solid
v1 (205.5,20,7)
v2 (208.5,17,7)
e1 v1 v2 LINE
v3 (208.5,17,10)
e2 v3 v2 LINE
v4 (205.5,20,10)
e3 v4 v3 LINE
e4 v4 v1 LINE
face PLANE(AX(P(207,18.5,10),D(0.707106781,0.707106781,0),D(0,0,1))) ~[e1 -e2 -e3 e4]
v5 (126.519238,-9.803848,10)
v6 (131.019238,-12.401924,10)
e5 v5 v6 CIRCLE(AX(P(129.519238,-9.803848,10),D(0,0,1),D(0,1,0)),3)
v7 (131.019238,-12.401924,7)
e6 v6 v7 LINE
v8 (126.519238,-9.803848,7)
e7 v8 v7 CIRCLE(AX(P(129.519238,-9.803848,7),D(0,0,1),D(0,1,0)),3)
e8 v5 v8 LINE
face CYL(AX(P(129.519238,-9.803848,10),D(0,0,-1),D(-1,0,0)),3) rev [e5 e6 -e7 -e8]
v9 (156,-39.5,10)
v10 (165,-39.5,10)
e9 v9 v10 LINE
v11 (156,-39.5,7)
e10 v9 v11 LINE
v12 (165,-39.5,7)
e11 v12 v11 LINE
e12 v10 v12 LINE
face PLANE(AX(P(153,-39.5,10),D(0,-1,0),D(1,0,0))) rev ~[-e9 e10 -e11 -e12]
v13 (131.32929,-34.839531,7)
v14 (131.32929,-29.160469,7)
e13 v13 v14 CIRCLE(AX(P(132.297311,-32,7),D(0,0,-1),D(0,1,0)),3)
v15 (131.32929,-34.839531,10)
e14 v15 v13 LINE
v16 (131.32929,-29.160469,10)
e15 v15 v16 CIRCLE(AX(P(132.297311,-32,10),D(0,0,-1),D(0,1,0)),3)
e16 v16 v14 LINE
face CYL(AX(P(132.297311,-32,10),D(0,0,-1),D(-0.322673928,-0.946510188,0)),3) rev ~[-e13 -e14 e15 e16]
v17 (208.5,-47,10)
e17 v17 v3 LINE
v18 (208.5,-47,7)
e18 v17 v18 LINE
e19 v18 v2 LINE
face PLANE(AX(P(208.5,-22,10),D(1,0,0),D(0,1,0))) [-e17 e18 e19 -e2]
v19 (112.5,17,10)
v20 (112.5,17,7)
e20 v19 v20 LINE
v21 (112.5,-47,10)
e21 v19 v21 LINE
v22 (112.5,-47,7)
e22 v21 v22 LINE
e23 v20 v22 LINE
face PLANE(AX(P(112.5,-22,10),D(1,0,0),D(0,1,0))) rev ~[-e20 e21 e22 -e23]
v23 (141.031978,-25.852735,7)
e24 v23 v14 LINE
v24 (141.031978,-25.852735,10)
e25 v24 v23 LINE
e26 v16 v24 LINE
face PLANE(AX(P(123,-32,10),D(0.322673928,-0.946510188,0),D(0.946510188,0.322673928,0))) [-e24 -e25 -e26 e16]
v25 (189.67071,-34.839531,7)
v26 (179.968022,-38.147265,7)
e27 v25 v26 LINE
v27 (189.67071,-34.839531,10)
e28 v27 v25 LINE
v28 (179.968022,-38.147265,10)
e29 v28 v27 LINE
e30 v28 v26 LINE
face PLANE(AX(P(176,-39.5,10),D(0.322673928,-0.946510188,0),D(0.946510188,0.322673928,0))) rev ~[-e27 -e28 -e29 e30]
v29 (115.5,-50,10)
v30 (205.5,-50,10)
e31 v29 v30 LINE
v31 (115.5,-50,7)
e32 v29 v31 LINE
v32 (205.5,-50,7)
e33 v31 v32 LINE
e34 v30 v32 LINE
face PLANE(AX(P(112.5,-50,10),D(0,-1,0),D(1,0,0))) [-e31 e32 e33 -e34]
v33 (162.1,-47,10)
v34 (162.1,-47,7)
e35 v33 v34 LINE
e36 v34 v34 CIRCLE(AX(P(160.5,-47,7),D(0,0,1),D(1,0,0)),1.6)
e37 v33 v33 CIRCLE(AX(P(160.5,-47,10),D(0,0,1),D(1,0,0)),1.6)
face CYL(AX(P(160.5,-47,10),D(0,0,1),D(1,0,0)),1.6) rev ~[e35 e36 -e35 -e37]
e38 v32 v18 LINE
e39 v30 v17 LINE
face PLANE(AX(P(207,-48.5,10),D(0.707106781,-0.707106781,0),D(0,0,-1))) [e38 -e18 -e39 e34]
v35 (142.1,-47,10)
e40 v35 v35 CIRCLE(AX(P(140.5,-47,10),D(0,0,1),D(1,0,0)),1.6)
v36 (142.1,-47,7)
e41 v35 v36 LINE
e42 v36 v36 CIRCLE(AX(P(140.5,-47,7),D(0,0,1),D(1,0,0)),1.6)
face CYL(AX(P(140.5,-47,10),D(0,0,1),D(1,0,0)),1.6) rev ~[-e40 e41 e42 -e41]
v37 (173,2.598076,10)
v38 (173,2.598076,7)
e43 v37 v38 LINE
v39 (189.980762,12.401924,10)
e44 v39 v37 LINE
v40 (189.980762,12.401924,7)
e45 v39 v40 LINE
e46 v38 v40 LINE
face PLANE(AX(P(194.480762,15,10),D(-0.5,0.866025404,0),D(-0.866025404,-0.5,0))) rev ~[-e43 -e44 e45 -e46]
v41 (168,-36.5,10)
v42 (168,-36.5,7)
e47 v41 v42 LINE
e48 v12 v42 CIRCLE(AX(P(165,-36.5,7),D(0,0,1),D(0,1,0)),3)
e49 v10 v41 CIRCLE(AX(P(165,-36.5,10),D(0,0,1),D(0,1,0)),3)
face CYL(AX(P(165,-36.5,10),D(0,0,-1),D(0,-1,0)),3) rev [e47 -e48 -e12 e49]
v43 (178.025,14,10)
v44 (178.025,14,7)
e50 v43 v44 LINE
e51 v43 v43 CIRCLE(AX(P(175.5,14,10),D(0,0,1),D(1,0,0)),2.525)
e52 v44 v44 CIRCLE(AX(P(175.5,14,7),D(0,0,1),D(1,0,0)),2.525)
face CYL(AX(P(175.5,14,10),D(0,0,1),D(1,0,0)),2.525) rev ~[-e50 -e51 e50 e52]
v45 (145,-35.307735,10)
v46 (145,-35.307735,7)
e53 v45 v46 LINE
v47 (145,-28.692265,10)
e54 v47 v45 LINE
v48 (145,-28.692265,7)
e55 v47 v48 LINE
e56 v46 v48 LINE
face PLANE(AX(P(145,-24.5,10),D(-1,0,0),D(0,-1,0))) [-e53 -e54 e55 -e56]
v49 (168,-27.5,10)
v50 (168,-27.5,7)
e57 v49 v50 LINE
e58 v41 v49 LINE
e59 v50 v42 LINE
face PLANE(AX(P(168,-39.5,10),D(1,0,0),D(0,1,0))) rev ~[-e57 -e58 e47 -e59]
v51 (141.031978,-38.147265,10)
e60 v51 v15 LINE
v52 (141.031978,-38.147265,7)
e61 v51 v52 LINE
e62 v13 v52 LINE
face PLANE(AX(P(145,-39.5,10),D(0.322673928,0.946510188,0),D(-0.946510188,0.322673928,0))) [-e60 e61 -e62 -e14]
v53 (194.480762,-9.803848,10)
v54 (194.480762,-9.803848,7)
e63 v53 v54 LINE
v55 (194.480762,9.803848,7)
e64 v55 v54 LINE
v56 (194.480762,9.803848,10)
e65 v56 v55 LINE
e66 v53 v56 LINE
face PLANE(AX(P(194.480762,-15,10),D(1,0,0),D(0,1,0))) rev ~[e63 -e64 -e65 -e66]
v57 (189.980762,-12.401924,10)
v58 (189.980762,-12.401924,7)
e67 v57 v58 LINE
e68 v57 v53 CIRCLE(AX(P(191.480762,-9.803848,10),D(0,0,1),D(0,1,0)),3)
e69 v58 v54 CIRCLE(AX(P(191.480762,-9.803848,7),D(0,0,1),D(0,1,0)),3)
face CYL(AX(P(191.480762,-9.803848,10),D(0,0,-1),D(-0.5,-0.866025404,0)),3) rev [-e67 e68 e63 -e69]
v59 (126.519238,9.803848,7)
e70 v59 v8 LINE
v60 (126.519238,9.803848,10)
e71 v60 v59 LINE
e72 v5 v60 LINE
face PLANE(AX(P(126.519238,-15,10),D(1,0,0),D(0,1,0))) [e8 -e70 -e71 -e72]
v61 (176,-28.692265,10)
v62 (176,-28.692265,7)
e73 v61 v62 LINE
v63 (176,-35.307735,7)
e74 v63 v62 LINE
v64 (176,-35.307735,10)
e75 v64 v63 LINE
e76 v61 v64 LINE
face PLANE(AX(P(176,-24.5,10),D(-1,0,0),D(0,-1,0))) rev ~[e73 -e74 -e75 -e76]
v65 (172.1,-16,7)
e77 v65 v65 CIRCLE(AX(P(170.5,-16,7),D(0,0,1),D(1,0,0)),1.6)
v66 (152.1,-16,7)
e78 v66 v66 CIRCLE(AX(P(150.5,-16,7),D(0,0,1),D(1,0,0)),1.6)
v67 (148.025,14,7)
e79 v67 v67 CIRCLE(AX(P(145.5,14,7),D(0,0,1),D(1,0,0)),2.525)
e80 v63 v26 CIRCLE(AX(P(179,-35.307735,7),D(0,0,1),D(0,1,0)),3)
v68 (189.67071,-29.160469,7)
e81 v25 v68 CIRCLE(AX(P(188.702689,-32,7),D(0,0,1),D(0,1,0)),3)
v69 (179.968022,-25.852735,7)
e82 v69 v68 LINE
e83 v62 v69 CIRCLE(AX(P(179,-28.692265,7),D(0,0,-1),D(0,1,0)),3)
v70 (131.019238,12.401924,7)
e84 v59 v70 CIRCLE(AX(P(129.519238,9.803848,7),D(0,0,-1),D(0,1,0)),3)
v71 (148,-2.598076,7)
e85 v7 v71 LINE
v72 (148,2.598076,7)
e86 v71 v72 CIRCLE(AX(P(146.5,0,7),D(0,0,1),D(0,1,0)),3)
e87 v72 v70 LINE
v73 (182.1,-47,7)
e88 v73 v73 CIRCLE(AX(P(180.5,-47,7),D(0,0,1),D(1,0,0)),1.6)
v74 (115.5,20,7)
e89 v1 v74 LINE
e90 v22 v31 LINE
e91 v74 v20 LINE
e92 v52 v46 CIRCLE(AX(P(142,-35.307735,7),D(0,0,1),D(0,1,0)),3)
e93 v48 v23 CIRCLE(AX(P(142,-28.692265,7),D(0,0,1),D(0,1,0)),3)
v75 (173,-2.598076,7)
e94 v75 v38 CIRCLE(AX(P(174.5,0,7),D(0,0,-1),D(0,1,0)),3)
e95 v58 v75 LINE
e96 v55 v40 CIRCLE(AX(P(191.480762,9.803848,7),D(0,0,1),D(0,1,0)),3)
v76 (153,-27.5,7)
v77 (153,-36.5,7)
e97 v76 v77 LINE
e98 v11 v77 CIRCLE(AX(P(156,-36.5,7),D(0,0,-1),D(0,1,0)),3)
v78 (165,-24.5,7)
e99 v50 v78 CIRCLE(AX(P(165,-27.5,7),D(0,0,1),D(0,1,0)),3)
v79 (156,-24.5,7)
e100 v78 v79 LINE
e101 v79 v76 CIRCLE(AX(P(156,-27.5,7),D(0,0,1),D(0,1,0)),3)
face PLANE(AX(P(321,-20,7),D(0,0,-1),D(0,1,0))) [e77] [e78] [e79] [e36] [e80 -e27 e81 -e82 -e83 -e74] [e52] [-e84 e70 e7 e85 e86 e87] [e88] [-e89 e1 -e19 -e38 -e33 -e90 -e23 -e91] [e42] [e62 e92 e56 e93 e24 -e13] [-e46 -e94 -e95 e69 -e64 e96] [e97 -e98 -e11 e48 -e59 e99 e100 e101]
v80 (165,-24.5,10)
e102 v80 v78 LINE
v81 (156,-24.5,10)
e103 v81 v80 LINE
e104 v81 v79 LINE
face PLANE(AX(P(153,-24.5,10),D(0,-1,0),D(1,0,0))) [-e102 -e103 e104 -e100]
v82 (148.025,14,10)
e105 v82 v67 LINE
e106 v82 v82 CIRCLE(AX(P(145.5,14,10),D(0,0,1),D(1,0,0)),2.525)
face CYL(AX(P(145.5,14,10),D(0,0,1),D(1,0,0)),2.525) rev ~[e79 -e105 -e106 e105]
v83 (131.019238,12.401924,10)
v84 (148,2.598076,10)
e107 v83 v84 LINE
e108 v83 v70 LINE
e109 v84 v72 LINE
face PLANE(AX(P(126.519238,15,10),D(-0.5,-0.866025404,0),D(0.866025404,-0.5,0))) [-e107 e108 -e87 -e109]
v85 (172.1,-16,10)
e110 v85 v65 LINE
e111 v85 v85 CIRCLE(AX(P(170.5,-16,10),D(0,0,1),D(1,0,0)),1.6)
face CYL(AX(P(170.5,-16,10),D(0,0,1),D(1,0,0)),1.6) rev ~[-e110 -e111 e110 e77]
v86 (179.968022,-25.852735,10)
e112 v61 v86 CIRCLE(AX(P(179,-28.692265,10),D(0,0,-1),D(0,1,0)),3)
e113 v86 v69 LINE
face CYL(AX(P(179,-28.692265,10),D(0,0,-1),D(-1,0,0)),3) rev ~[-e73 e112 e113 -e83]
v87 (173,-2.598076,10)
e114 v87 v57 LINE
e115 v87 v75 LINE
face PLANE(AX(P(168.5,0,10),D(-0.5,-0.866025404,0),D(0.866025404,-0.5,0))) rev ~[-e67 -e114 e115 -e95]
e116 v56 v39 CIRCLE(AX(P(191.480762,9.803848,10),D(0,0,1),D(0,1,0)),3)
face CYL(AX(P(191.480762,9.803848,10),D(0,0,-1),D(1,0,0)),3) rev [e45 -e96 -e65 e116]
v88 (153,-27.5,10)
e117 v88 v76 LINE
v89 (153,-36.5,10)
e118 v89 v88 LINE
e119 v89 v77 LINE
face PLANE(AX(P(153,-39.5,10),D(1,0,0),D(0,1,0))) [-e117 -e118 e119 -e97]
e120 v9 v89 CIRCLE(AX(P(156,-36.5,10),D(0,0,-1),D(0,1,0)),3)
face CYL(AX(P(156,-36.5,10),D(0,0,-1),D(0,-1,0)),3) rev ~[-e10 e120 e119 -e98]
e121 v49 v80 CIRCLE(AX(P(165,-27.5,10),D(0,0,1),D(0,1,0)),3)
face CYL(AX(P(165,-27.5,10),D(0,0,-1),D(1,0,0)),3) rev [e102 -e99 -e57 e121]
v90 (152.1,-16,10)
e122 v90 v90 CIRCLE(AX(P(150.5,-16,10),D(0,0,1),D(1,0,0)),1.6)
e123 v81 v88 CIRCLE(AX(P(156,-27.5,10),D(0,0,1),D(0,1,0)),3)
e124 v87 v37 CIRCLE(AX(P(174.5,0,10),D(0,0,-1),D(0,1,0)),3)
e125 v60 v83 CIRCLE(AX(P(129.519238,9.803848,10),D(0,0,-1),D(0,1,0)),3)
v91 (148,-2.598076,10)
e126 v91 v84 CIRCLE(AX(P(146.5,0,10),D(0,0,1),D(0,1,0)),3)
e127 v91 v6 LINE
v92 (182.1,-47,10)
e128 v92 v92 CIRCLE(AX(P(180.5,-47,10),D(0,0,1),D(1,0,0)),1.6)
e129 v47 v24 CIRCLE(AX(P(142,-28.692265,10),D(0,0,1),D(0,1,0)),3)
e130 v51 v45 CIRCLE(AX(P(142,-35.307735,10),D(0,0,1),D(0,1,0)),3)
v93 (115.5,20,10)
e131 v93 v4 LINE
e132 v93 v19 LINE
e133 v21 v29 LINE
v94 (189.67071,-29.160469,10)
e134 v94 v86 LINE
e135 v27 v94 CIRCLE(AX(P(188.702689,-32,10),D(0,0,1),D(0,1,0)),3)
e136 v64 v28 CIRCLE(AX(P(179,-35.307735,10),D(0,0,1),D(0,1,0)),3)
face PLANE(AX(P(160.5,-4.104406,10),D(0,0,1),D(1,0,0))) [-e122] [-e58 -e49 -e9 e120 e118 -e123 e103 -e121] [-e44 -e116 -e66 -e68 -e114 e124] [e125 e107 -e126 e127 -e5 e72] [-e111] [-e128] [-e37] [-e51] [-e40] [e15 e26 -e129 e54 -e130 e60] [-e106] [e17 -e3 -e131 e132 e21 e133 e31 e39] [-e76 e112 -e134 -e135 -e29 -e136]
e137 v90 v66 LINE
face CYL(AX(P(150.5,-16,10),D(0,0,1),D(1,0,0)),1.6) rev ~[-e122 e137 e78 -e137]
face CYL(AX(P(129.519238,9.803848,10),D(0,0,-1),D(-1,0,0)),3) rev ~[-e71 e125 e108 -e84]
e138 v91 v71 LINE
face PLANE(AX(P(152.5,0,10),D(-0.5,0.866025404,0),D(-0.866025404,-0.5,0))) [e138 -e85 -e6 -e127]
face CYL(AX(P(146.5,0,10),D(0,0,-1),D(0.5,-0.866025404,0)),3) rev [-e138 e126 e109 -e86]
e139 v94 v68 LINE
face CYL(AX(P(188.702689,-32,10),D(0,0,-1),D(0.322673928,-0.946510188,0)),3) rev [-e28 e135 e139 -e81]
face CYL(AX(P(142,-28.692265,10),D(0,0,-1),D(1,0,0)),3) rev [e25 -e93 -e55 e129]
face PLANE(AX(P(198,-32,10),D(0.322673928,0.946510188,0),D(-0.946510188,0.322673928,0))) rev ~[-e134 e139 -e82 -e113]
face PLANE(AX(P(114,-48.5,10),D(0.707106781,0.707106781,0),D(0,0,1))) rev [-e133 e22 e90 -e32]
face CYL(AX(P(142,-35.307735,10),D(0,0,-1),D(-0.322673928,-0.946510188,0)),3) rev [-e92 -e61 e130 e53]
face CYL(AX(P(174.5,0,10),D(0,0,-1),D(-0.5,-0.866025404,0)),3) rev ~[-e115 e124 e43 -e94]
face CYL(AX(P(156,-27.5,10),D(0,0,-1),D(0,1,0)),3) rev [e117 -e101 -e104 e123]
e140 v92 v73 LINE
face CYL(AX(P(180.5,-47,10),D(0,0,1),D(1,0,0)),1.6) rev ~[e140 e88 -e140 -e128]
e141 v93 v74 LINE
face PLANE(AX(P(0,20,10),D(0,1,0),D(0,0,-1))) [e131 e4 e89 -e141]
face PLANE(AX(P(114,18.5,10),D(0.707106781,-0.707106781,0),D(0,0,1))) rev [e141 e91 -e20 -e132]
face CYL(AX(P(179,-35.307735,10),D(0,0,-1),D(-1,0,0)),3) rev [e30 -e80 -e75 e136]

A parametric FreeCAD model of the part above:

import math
import FreeCAD as App
import Part
import Sketcher
from FreeCAD import Vector
Q = App.Units.Quantity


def edges_at(feature, points):
    """Names of the edges that pass closest to the given points."""
    edges = feature.Shape.Edges
    near = lambda p: min(range(len(edges)), key=lambda i: edges[i].distToShape(Part.Vertex(*p))[0])
    return sorted({f"Edge{near(p) + 1}" for p in points})


def add_polygon(sketch, points):
    """Adds a closed chain of lines whose ends are joined by coincident constraints."""
    first, n = sketch.GeometryCount, len(points)
    for a, b in zip(points, points[1:] + points[:1]):
        sketch.addGeometry(Part.LineSegment(App.Vector(*a, 0), App.Vector(*b, 0)), False)
    for i in range(n):
        sketch.addConstraint(Sketcher.Constraint("Coincident", first + i, 2, first + (i + 1) % n, 1))

doc = App.newDocument("Part")
body = doc.addObject("PartDesign::Body", "Body")

# Sketch on YZ plane
sketch1 = doc.addObject("Sketcher::SketchObject", "Sketch")
body.addObject(sketch1)
sketch1.AttachmentSupport = (doc.YZ_Plane, [""])
sketch1.MapMode = "FlatFace"
add_polygon(sketch1, [(20, 10), (-20, 10), (-20, -10), (20, -10)])  # lines 0-3
add_polygon(sketch1, [(-17, -7), (-17, 7), (17, 7), (17, -7)])  # lines 4-7
sketch1.addConstraint([
    Sketcher.Constraint("Horizontal", 0),
    Sketcher.Constraint("Vertical", 1),
    Sketcher.Constraint("Horizontal", 2),
    Sketcher.Constraint("Vertical", 3),
    Sketcher.Constraint("Vertical", 4),
    Sketcher.Constraint("Horizontal", 5),
    Sketcher.Constraint("Vertical", 6),
    Sketcher.Constraint("Horizontal", 7),
    Sketcher.Constraint("Symmetric", 0, 2, 2, 2, -1, 1),
    Sketcher.Constraint("Symmetric", 4, 2, 6, 2, -1, 1),
    Sketcher.Constraint("DistanceX", 0, 2, 0, 1, 40.0),
    Sketcher.Constraint("DistanceX", 5, 1, 5, 2, 34.0),
    Sketcher.Constraint("DistanceY", 1, 2, 1, 1, 20.0),
    Sketcher.Constraint("DistanceY", 4, 1, 4, 2, 14.0),
])
pad1 = doc.addObject("PartDesign::Pad", "Pad")
body.addObject(pad1)
pad1.Profile = sketch1
pad1.Length = 321

# Sketch on XY plane
sketch2 = doc.addObject("Sketcher::SketchObject", "Sketch001")
body.addObject(sketch2)
sketch2.AttachmentSupport = (doc.XY_Plane, [""])
sketch2.MapMode = "FlatFace"
sketch2.AttachmentOffset = App.Placement(Vector(0, 0, 10), App.Rotation())
sketch2.addGeometry([
    Part.Circle(Vector(145.5, 14, 0), Vector(0, 0, 1), 2.525),
    Part.Circle(Vector(175.5, 14, 0), Vector(0, 0, 1), 2.525),
], False)
sketch2.addConstraint([
    Sketcher.Constraint("Equal", 0, 1),
    Sketcher.Constraint("Horizontal", 0, 3, 1, 3),
    Sketcher.Constraint("Diameter", 0, 5.05),
    Sketcher.Constraint("DistanceY", -1, 1, 0, 3, 14.0),
    Sketcher.Constraint("DistanceX", 0, 3, 1, 3, 30.0),
    Sketcher.Constraint("DistanceX", -1, 1, 0, 3, 145.5),
])
pocket1 = doc.addObject("PartDesign::Pocket", "Pocket")
body.addObject(pocket1)
pocket1.Profile = sketch2
pocket1.Type = "ThroughAll"

# Sketch on YZ plane
sketch3 = doc.addObject("Sketcher::SketchObject", "Sketch002")
body.addObject(sketch3)
sketch3.AttachmentSupport = (doc.YZ_Plane, [""])
sketch3.MapMode = "FlatFace"
sketch3.AttachmentOffset = App.Placement(Vector(0, 0, 321), App.Rotation())
add_polygon(sketch3, [(20, 7), (-20, 7), (-20, -10), (20, -10)])  # lines 0-3
sketch3.addConstraint([
    Sketcher.Constraint("Horizontal", 0),
    Sketcher.Constraint("Vertical", 1),
    Sketcher.Constraint("Horizontal", 2),
    Sketcher.Constraint("Vertical", 3),
    Sketcher.Constraint("DistanceX", 0, 2, 0, 1, 40.0),
    Sketcher.Constraint("DistanceY", 1, 2, 1, 1, 17.0),
    Sketcher.Constraint("DistanceX", 0, 2, -1, 1, 20.0),
    Sketcher.Constraint("DistanceY", -1, 1, 0, 2, 7.0),
])
pocket2 = doc.addObject("PartDesign::Pocket", "Pocket001")
body.addObject(pocket2)
pocket2.Profile = sketch3
pocket2.Type = "ThroughAll"

# Sketch on XY plane
sketch4 = doc.addObject("Sketcher::SketchObject", "Sketch003")
body.addObject(sketch4)
sketch4.AttachmentSupport = (doc.XY_Plane, [""])
sketch4.MapMode = "FlatFace"
sketch4.AttachmentOffset = App.Placement(Vector(0, 0, 10), App.Rotation())
add_polygon(sketch4, [(112.5, -20), (112.5, -50), (208.5, -50), (208.5, -20)])  # lines 0-3
sketch4.addConstraint([
    Sketcher.Constraint("Vertical", 0),
    Sketcher.Constraint("Horizontal", 1),
    Sketcher.Constraint("Vertical", 2),
    Sketcher.Constraint("Horizontal", 3),
    Sketcher.Constraint("DistanceX", 1, 1, 1, 2, 96.0),
    Sketcher.Constraint("DistanceY", 0, 2, 0, 1, 30.0),
    Sketcher.Constraint("DistanceY", 0, 2, -1, 1, 50.0),
    Sketcher.Constraint("DistanceX", -1, 1, 0, 2, 112.5),
])
pad2 = doc.addObject("PartDesign::Pad", "Pad001")
body.addObject(pad2)
pad2.Profile = sketch4
pad2.Length = 3
pad2.Reversed = True

# Sketch on XY plane
sketch5 = doc.addObject("Sketcher::SketchObject", "Sketch004")
body.addObject(sketch5)
sketch5.AttachmentSupport = (doc.XY_Plane, [""])
sketch5.MapMode = "FlatFace"
sketch5.AttachmentOffset = App.Placement(Vector(0, 0, 10), App.Rotation())
sketch5.addGeometry([
    Part.Circle(Vector(12, 16.5, 0), Vector(0, 0, 1), 1.6),  # 0
    Part.Circle(Vector(29, 16.5, 0), Vector(0, 0, 1), 1.6),  # 1
    Part.Circle(Vector(12, -14, 0), Vector(0, 0, 1), 1.6),  # 2
    Part.Circle(Vector(29, -14, 0), Vector(0, 0, 1), 1.6),  # 3
    Part.Circle(Vector(43.5, -14, 0), Vector(0, 0, 1), 1.6),  # 4
    Part.Circle(Vector(67.5, -14, 0), Vector(0, 0, 1), 1.6),  # 5
    Part.Circle(Vector(222, -14, 0), Vector(0, 0, 1), 1.6),  # 6
    Part.Circle(Vector(239, -14, 0), Vector(0, 0, 1), 1.6),  # 7
    Part.Circle(Vector(253.5, -14, 0), Vector(0, 0, 1), 1.6),  # 8
    Part.Circle(Vector(277.5, -14, 0), Vector(0, 0, 1), 1.6),  # 9
    Part.Circle(Vector(292, -14, 0), Vector(0, 0, 1), 1.6),  # 10
    Part.Circle(Vector(309, -14, 0), Vector(0, 0, 1), 1.6),  # 11
    Part.Circle(Vector(82, -14, 0), Vector(0, 0, 1), 1.6),  # 12
    Part.Circle(Vector(99, -14, 0), Vector(0, 0, 1), 1.6),  # 13
    Part.Circle(Vector(292, 16.5, 0), Vector(0, 0, 1), 1.6),  # 14
    Part.Circle(Vector(309, 16.5, 0), Vector(0, 0, 1), 1.6),  # 15
    Part.Circle(Vector(140.5, -47, 0), Vector(0, 0, 1), 1.6),  # 16
    Part.Circle(Vector(160.5, -47, 0), Vector(0, 0, 1), 1.6),  # 17
    Part.Circle(Vector(180.5, -47, 0), Vector(0, 0, 1), 1.6),  # 18
], False)
sketch5.addConstraint([
    Sketcher.Constraint("Equal", 0, 1),
    Sketcher.Constraint("Equal", 1, 2),
    Sketcher.Constraint("Equal", 2, 3),
    Sketcher.Constraint("Equal", 3, 4),
    Sketcher.Constraint("Equal", 4, 5),
    Sketcher.Constraint("Equal", 5, 6),
    Sketcher.Constraint("Equal", 6, 7),
    Sketcher.Constraint("Equal", 7, 8),
    Sketcher.Constraint("Equal", 8, 9),
    Sketcher.Constraint("Equal", 9, 10),
    Sketcher.Constraint("Equal", 10, 11),
    Sketcher.Constraint("Equal", 11, 12),
    Sketcher.Constraint("Equal", 12, 13),
    Sketcher.Constraint("Equal", 13, 14),
    Sketcher.Constraint("Equal", 14, 15),
    Sketcher.Constraint("Equal", 15, 16),
    Sketcher.Constraint("Equal", 16, 17),
    Sketcher.Constraint("Equal", 17, 18),
    Sketcher.Constraint("Horizontal", 0, 3, 1, 3),
    Sketcher.Constraint("Horizontal", 2, 3, 3, 3),
    Sketcher.Constraint("Horizontal", 3, 3, 4, 3),
    Sketcher.Constraint("Horizontal", 4, 3, 5, 3),
    Sketcher.Constraint("Horizontal", 5, 3, 6, 3),
    Sketcher.Constraint("Horizontal", 6, 3, 7, 3),
    Sketcher.Constraint("Horizontal", 7, 3, 8, 3),
    Sketcher.Constraint("Horizontal", 8, 3, 9, 3),
    Sketcher.Constraint("Horizontal", 9, 3, 10, 3),
    Sketcher.Constraint("Horizontal", 10, 3, 11, 3),
    Sketcher.Constraint("Horizontal", 11, 3, 12, 3),
    Sketcher.Constraint("Horizontal", 12, 3, 13, 3),
    Sketcher.Constraint("Horizontal", 1, 3, 14, 3),
    Sketcher.Constraint("Horizontal", 14, 3, 15, 3),
    Sketcher.Constraint("Horizontal", 16, 3, 17, 3),
    Sketcher.Constraint("Horizontal", 17, 3, 18, 3),
    Sketcher.Constraint("Vertical", 0, 3, 2, 3),
    Sketcher.Constraint("Vertical", 1, 3, 3, 3),
    Sketcher.Constraint("Vertical", 10, 3, 14, 3),
    Sketcher.Constraint("Vertical", 11, 3, 15, 3),
    Sketcher.Constraint("Diameter", 0, 3.2),
    Sketcher.Constraint("DistanceX", -1, 1, 0, 3, 12.0),
    Sketcher.Constraint("DistanceX", -1, 1, 1, 3, 29.0),
    Sketcher.Constraint("DistanceY", 2, 3, -1, 1, 14.0),
    Sketcher.Constraint("DistanceX", -1, 1, 6, 3, 222.0),
    Sketcher.Constraint("DistanceX", -1, 1, 7, 3, 239.0),
    Sketcher.Constraint("DistanceX", -1, 1, 10, 3, 292.0),
    Sketcher.Constraint("DistanceX", -1, 1, 11, 3, 309.0),
    Sketcher.Constraint("DistanceX", -1, 1, 12, 3, 82.0),
    Sketcher.Constraint("DistanceX", -1, 1, 13, 3, 99.0),
    Sketcher.Constraint("DistanceY", 16, 3, -1, 1, 47.0),
    Sketcher.Constraint("DistanceX", 4, 3, 5, 3, 24.0),
    Sketcher.Constraint("DistanceX", 5, 3, 8, 3, 186.0),
    Sketcher.Constraint("DistanceX", 8, 3, 9, 3, 24.0),
    Sketcher.Constraint("DistanceX", 5, 3, 16, 3, 73.0),
    Sketcher.Constraint("DistanceX", 16, 3, 17, 3, 20.0),
    Sketcher.Constraint("DistanceX", 17, 3, 18, 3, 20.0),
    Sketcher.Constraint("DistanceY", -1, 1, 0, 3, 16.5),
    Sketcher.Constraint("DistanceX", -1, 1, 4, 3, 43.5),
])
pocket3 = doc.addObject("PartDesign::Pocket", "Pocket002")
body.addObject(pocket3)
pocket3.Profile = sketch5
pocket3.Type = "ThroughAll"
doc.recompute()

fillet = doc.addObject("PartDesign::Fillet", "Fillet")
body.addObject(fillet)
fillet.Base = (pocket3, edges_at(pocket3, [(208.5, -20, 8.5), (112.5, -20, 8.5)]))
fillet.Radius = 2
doc.recompute()

chamfer = doc.addObject("PartDesign::Chamfer", "Chamfer")
body.addObject(chamfer)
chamfer.Base = (fillet, edges_at(fillet, [
    (0, 20, 8.5),
    (321, 20, 8.5),
    (0, -20, 8.5),
    (208.5, -50, 8.5),
    (112.5, -50, 8.5),
    (321, -20, 8.5),
]))
chamfer.Size = 3

# Sketch on XY plane
sketch6 = doc.addObject("Sketcher::SketchObject", "Sketch005")
body.addObject(sketch6)
sketch6.AttachmentSupport = (doc.XY_Plane, [""])
sketch6.MapMode = "FlatFace"
sketch6.AttachmentOffset = App.Placement(Vector(0, 0, 10), App.Rotation())
add_polygon(sketch6, [(295, 12.5), (295, -10), (306, -10), (306, 12.5)])  # lines 0-3
add_polygon(sketch6, [(15, 12.5), (15, -10), (26, -10), (26, 12.5)])  # lines 4-7
add_polygon(sketch6, [(153, -24.5), (153, -39.5), (168, -39.5), (168, -24.5)])  # lines 8-11
add_polygon(sketch6, [(145, -24.5), (123, -32), (145, -39.5)])  # lines 12-14
add_polygon(sketch6, [(176, -24.5), (176, -39.5), (198, -32)])  # lines 15-17
sketch6.addConstraint([
    Sketcher.Constraint("Vertical", 0),
    Sketcher.Constraint("Horizontal", 1),
    Sketcher.Constraint("Vertical", 2),
    Sketcher.Constraint("Horizontal", 3),
    Sketcher.Constraint("Vertical", 4),
    Sketcher.Constraint("Horizontal", 5),
    Sketcher.Constraint("Vertical", 6),
    Sketcher.Constraint("Horizontal", 7),
    Sketcher.Constraint("Vertical", 8),
    Sketcher.Constraint("Horizontal", 9),
    Sketcher.Constraint("Vertical", 10),
    Sketcher.Constraint("Horizontal", 11),
    Sketcher.Constraint("Vertical", 14),
    Sketcher.Constraint("Vertical", 15),
    Sketcher.Constraint("Parallel", 12, 16),
    Sketcher.Constraint("Parallel", 13, 17),
    Sketcher.Constraint("Horizontal", 1, 2, 4, 2),
    Sketcher.Constraint("Horizontal", 3, 2, 6, 2),
    Sketcher.Constraint("Horizontal", 9, 2, 13, 2),
    Sketcher.Constraint("Horizontal", 11, 2, 14, 2),
    Sketcher.Constraint("Horizontal", 13, 2, 15, 2),
    Sketcher.Constraint("Horizontal", 12, 2, 16, 2),
    Sketcher.Constraint("Horizontal", 14, 2, 17, 2),
    Sketcher.Constraint("Equal", 3, 5),
    Sketcher.Constraint("Equal", 11, 8),
    Sketcher.Constraint("DistanceX", 1, 1, 1, 2, 11.0),
    Sketcher.Constraint("DistanceX", 9, 1, 9, 2, 15.0),
    Sketcher.Constraint("DistanceY", 0, 2, 0, 1, 22.5),
    Sketcher.Constraint("DistanceX", -1, 1, 0, 2, 295.0),
    Sketcher.Constraint("DistanceY", 0, 2, -1, 1, 10.0),
    Sketcher.Constraint("DistanceX", -1, 1, 4, 2, 15.0),
    Sketcher.Constraint("DistanceX", -1, 1, 8, 2, 153.0),
    Sketcher.Constraint("DistanceX", -1, 1, 12, 2, 123.0),
    Sketcher.Constraint("DistanceY", 12, 2, -1, 1, 32.0),
    Sketcher.Constraint("DistanceX", -1, 1, 13, 2, 145.0),
    Sketcher.Constraint("DistanceX", -1, 1, 15, 2, 176.0),
])
pocket4 = doc.addObject("PartDesign::Pocket", "Pocket003")
body.addObject(pocket4)
pocket4.Profile = sketch6
pocket4.Type = "ThroughAll"
doc.recompute()

fillet2 = doc.addObject("PartDesign::Fillet", "Fillet001")
body.addObject(fillet2)
fillet2.Base = (pocket4, edges_at(pocket4, [
    (26, 12.5, 8.5),
    (26, -10, 8.5),
    (15, -10, 8.5),
    (15, 12.5, 8.5),
    (176, -24.5, 8.5),
    (198, -32, 8.5),
    (176, -39.5, 8.5),
    (145, -39.5, 8.5),
    (123, -32, 8.5),
    (145, -24.5, 8.5),
    (168, -24.5, 8.5),
    (168, -39.5, 8.5),
    (153, -39.5, 8.5),
    (153, -24.5, 8.5),
    (306, 12.5, 8.5),
    (306, -10, 8.5),
    (295, -10, 8.5),
    (295, 12.5, 8.5),
]))
fillet2.Radius = 3

# Sketch on XY plane
sketch7 = doc.addObject("Sketcher::SketchObject", "Sketch006")
body.addObject(sketch7)
sketch7.AttachmentSupport = (doc.XY_Plane, [""])
sketch7.MapMode = "FlatFace"
sketch7.AttachmentOffset = App.Placement(Vector(0, 0, 10), App.Rotation())
add_polygon(sketch7, [(33, 6.14492), (33, -10), (55.199265, -10)])  # lines 0-2
add_polygon(sketch7, [(139.896171, -10), (181.103829, -10), (160.5, 8.60991)])  # lines 3-5
add_polygon(sketch7, [(41.300735, 10), (67.248892, -8.871387), (88.479203, 10)])  # lines 6-8
add_polygon(sketch7, [(265.800735, -10), (288, -10), (288, 6.14492)])  # lines 9-11
add_polygon(sketch7, [(232.520797, 10), (253.751108, -8.871387), (279.699265, 10)])  # lines 12-14
sketch7.addConstraint([
    Sketcher.Constraint("Vertical", 0),
    Sketcher.Constraint("Horizontal", 1),
    Sketcher.Constraint("Horizontal", 3),
    Sketcher.Constraint("Horizontal", 8),
    Sketcher.Constraint("Horizontal", 9),
    Sketcher.Constraint("Vertical", 10),
    Sketcher.Constraint("Horizontal", 14),
    Sketcher.Constraint("Parallel", 2, 6),
    Sketcher.Constraint("Parallel", 11, 13),
    Sketcher.Constraint("Horizontal", 1, 2, 3, 2),
    Sketcher.Constraint("Horizontal", 5, 2, 9, 2),
    Sketcher.Constraint("Horizontal", 2, 2, 10, 2),
    Sketcher.Constraint("Horizontal", 6, 2, 12, 2),
    Sketcher.Constraint("Horizontal", 8, 2, 13, 2),
    Sketcher.Constraint("Equal", 1, 9),
    Sketcher.Constraint("Equal", 8, 14),
    Sketcher.Constraint("Equal", 4, 5),
    Sketcher.Constraint("DistanceX", -1, 1, 0, 2, 33.0),
    Sketcher.Constraint("DistanceY", 0, 2, -1, 1, 10.0),
    Sketcher.Constraint("DistanceY", -1, 1, 7, 2, 10.0),
    Sketcher.Constraint("DistanceX", -1, 1, 9, 2, 288.0),
    Sketcher.Constraint("DistanceX", -1, 1, 4, 2, 160.5),
    Sketcher.Constraint("Distance", 7, 28.405199),
    Sketcher.Constraint("DistanceY", 0, 2, 0, 1, 16.14492),
    Sketcher.Constraint("Distance", 2, 27.449331),
    Sketcher.Constraint("DistanceX", 3, 1, 3, 2, 41.207658),
    Sketcher.Constraint("DistanceX", 8, 2, 8, 1, 47.178467),
    Sketcher.Constraint("DistanceY", -1, 1, 4, 2, 8.60991),
    Sketcher.Constraint("DistanceX", 6, 2, 5, 2, 72.647279),
    Sketcher.Constraint("DistanceX", 3, 2, 12, 2, 72.647279),
])
pocket5 = doc.addObject("PartDesign::Pocket", "Pocket004")
body.addObject(pocket5)
pocket5.Profile = sketch7
pocket5.Type = "ThroughAll"
doc.recompute()

fillet3 = doc.addObject("PartDesign::Fillet", "Fillet002")
body.addObject(fillet3)
fillet3.Base = (pocket5, edges_at(pocket5, [
    (279.699, 10, 8.5),
    (253.751, -8.871, 8.5),
    (232.521, 10, 8.5),
    (265.801, -10, 8.5),
    (288, 6.145, 8.5),
    (288, -10, 8.5),
    (160.5, 8.61, 8.5),
    (181.104, -10, 8.5),
    (139.896, -10, 8.5),
    (88.479, 10, 8.5),
    (67.249, -8.871, 8.5),
    (41.301, 10, 8.5),
    (33, 6.145, 8.5),
    (55.199, -10, 8.5),
    (33, -10, 8.5),
]))
fillet3.Radius = 2

# Sketch on XY plane
sketch8 = doc.addObject("Sketcher::SketchObject", "Sketch007")
body.addObject(sketch8)
sketch8.AttachmentSupport = (doc.XY_Plane, [""])
sketch8.MapMode = "FlatFace"
sketch8.AttachmentOffset = App.Placement(Vector(0, 0, 10), App.Rotation())
sketch8.addGeometry([
    Part.Circle(Vector(150.5, -16, 0), Vector(0, 0, 1), 1.6),
    Part.Circle(Vector(170.5, -16, 0), Vector(0, 0, 1), 1.6),
], False)
sketch8.addConstraint([
    Sketcher.Constraint("Equal", 0, 1),
    Sketcher.Constraint("Horizontal", 0, 3, 1, 3),
    Sketcher.Constraint("Diameter", 0, 3.2),
    Sketcher.Constraint("DistanceY", 0, 3, -1, 1, 16.0),
    Sketcher.Constraint("DistanceX", 0, 3, 1, 3, 20.0),
    Sketcher.Constraint("DistanceX", -1, 1, 0, 3, 150.5),
])
pocket6 = doc.addObject("PartDesign::Pocket", "Pocket005")
body.addObject(pocket6)
pocket6.Profile = sketch8
pocket6.Type = "ThroughAll"

# Sketch on XY plane
sketch9 = doc.addObject("Sketcher::SketchObject", "Sketch008")
body.addObject(sketch9)
sketch9.AttachmentSupport = (doc.XY_Plane, [""])
sketch9.MapMode = "FlatFace"
sketch9.AttachmentOffset = App.Placement(Vector(0, 0, 10), App.Rotation())
sketch9.addGeometry([
    Part.ArcOfCircle(Part.Circle(Vector(110.5, -22, 0), Vector(0, 0, 1), 2), math.radians(0), math.radians(90)),  # 0
    Part.LineSegment(Vector(112.5, -22, 0), Vector(112.5, 20, 0)),  # 1
    Part.LineSegment(Vector(112.5, 20, 0), Vector(3, 20, 0)),  # 2
    Part.LineSegment(Vector(3, 20, 0), Vector(0, 17, 0)),  # 3
    Part.LineSegment(Vector(0, 17, 0), Vector(0, -17, 0)),  # 4
    Part.LineSegment(Vector(0, -17, 0), Vector(3, -20, 0)),  # 5
    Part.LineSegment(Vector(3, -20, 0), Vector(110.5, -20, 0)),  # 6
    Part.ArcOfCircle(Part.Circle(Vector(210.5, -22, 0), Vector(0, 0, 1), 2), math.radians(90), math.radians(180)),  # 7
    Part.LineSegment(Vector(210.5, -20, 0), Vector(318, -20, 0)),  # 8
    Part.LineSegment(Vector(318, -20, 0), Vector(321, -17, 0)),  # 9
    Part.LineSegment(Vector(321, -17, 0), Vector(321, 17, 0)),  # 10
    Part.LineSegment(Vector(321, 17, 0), Vector(318, 20, 0)),  # 11
    Part.LineSegment(Vector(318, 20, 0), Vector(208.5, 20, 0)),  # 12
    Part.LineSegment(Vector(208.5, 20, 0), Vector(208.5, -22, 0)),  # 13
], False)
sketch9.addConstraint([
    Sketcher.Constraint("Tangent", 0, 1, 1, 1),
    Sketcher.Constraint("Coincident", 1, 2, 2, 1),
    Sketcher.Constraint("Coincident", 2, 2, 3, 1),
    Sketcher.Constraint("Coincident", 3, 2, 4, 1),
    Sketcher.Constraint("Coincident", 4, 2, 5, 1),
    Sketcher.Constraint("Coincident", 5, 2, 6, 1),
    Sketcher.Constraint("Tangent", 6, 2, 0, 2),
    Sketcher.Constraint("Tangent", 7, 1, 8, 1),
    Sketcher.Constraint("Coincident", 8, 2, 9, 1),
    Sketcher.Constraint("Coincident", 9, 2, 10, 1),
    Sketcher.Constraint("Coincident", 10, 2, 11, 1),
    Sketcher.Constraint("Coincident", 11, 2, 12, 1),
    Sketcher.Constraint("Coincident", 12, 2, 13, 1),
    Sketcher.Constraint("Tangent", 13, 2, 7, 2),
    Sketcher.Constraint("Vertical", 1),
    Sketcher.Constraint("Horizontal", 2),
    Sketcher.Constraint("Vertical", 4),
    Sketcher.Constraint("Horizontal", 6),
    Sketcher.Constraint("Horizontal", 8),
    Sketcher.Constraint("Vertical", 10),
    Sketcher.Constraint("Horizontal", 12),
    Sketcher.Constraint("Vertical", 13),
    Sketcher.Constraint("Equal", 0, 7),
    Sketcher.Constraint("Symmetric", 3, 2, 4, 2, -1, 1),
    Sketcher.Constraint("Symmetric", 2, 2, 5, 2, -1),
    Sketcher.Constraint("Symmetric", 8, 2, 11, 2, -1),
    Sketcher.Constraint("Perpendicular", 3, 5),
    Sketcher.Constraint("Perpendicular", 5, 9),
    Sketcher.Constraint("Perpendicular", 9, 11),
    Sketcher.Constraint("Horizontal", 0, 3, 7, 3),
    Sketcher.Constraint("Horizontal", 4, 2, 9, 2),
    Sketcher.Constraint("Equal", 6, 8),
    Sketcher.Constraint("Radius", 0, 2.0),
    Sketcher.Constraint("DistanceY", 1, 1, 1, 2, 42.0),
    Sketcher.Constraint("DistanceY", 4, 2, 4, 1, 34.0),
    Sketcher.Constraint("DistanceX", 2, 2, 2, 1, 109.5),
    Sketcher.Constraint("DistanceX", -1, 1, 8, 2, 318.0),
])
pocket7 = doc.addObject("PartDesign::Pocket", "Pocket006")
body.addObject(pocket7)
pocket7.Profile = sketch9
pocket7.Length = 10
doc.recompute()

chamfer2 = doc.addObject("PartDesign::Chamfer", "Chamfer001")
body.addObject(chamfer2)
chamfer2.Base = (pocket7, edges_at(pocket7, [(112.5, 20, 8.5), (208.5, 20, 8.5)]))
chamfer2.Size = 3

# Sketch on XY plane
sketch10 = doc.addObject("Sketcher::SketchObject", "Sketch009")
body.addObject(sketch10)
sketch10.AttachmentSupport = (doc.XY_Plane, [""])
sketch10.MapMode = "FlatFace"
sketch10.AttachmentOffset = App.Placement(Vector(0, 0, 10), App.Rotation())
sketch10.addGeometry([
    Part.LineSegment(Vector(145.094257, -10, 0), Vector(175.905743, -10, 0)),  # 0
    Part.ArcOfCircle(Part.Circle(Vector(175.905743, -8, 0), Vector(0, 0, 1), 2), math.radians(-90), math.radians(47.910838)),  # 1
    Part.LineSegment(Vector(177.246316, -6.515795, 0), Vector(161.840573, 7.39907, 0)),  # 2
    Part.ArcOfCircle(Part.Circle(Vector(160.5, 5.914865, 0), Vector(0, 0, 1), 2), math.radians(47.910838), math.radians(132.089162)),  # 3
    Part.LineSegment(Vector(159.159427, 7.39907, 0), Vector(143.753684, -6.515795, 0)),  # 4
    Part.ArcOfCircle(Part.Circle(Vector(145.094257, -8, 0), Vector(0, 0, 1), 2), math.radians(132.089162), math.radians(270)),  # 5
], False)
sketch10.addConstraint([
    Sketcher.Constraint("Tangent", 0, 2, 1, 1),
    Sketcher.Constraint("Tangent", 1, 2, 2, 1),
    Sketcher.Constraint("Tangent", 2, 2, 3, 1),
    Sketcher.Constraint("Tangent", 3, 2, 4, 1),
    Sketcher.Constraint("Tangent", 4, 2, 5, 1),
    Sketcher.Constraint("Tangent", 5, 2, 0, 1),
    Sketcher.Constraint("Horizontal", 0),
    Sketcher.Constraint("Equal", 1, 3),
    Sketcher.Constraint("Equal", 3, 5),
    Sketcher.Constraint("Horizontal", 2, 2, 3, 2),
    Sketcher.Constraint("Radius", 1, 2.0),
    Sketcher.Constraint("DistanceY", 1, 3, -1, 1, 8.0),
    Sketcher.Constraint("DistanceX", -1, 1, 3, 3, 160.5),
    Sketcher.Constraint("DistanceX", 0, 1, 0, 2, 30.811487),
    Sketcher.Constraint("DistanceY", -1, 1, 2, 2, 7.39907),
])
pad3 = doc.addObject("PartDesign::Pad", "Pad002")
body.addObject(pad3)
pad3.Profile = sketch10
pad3.Length = 3
pad3.Reversed = True

# Sketch on XY plane
sketch11 = doc.addObject("Sketcher::SketchObject", "Sketch010")
body.addObject(sketch11)
sketch11.AttachmentSupport = (doc.XY_Plane, [""])
sketch11.MapMode = "FlatFace"
sketch11.AttachmentOffset = App.Placement(Vector(0, 0, 10), App.Rotation())
add_polygon(sketch11, [(152.5, 0), (126.519238, 15), (126.519238, -15)])  # lines 0-2
add_polygon(sketch11, [(168.5, 0), (194.480762, -15), (194.480762, 15)])  # lines 3-5
sketch11.addConstraint([
    Sketcher.Constraint("Vertical", 1),
    Sketcher.Constraint("Vertical", 4),
    Sketcher.Constraint("PointOnObject", 2, 2, -1),
    Sketcher.Constraint("PointOnObject", 5, 2, -1),
    Sketcher.Constraint("Parallel", 0, 3),
    Sketcher.Constraint("Parallel", 2, 5),
    Sketcher.Constraint("Horizontal", 1, 2, 3, 2),
    Sketcher.Constraint("Horizontal", 0, 2, 4, 2),
    Sketcher.Constraint("DistanceY", 1, 2, 1, 1, 30.0),
    Sketcher.Constraint("Angle", 0, Q("150 deg")),
    Sketcher.Constraint("DistanceX", 2, 2, 5, 2, 16.0),
    Sketcher.Constraint("DistanceX", -1, 1, 2, 2, 152.5),
])
pocket8 = doc.addObject("PartDesign::Pocket", "Pocket007")
body.addObject(pocket8)
pocket8.Profile = sketch11
pocket8.Type = "ThroughAll"
doc.recompute()

fillet4 = doc.addObject("PartDesign::Fillet", "Fillet003")
body.addObject(fillet4)
fillet4.Base = (pocket8, edges_at(pocket8, [
    (126.519, -15, 8.5),
    (126.519, 15, 8.5),
    (152.5, 0, 8.5),
    (168.5, 0, 8.5),
    (194.481, 15, 8.5),
    (194.481, -15, 8.5),
]))
fillet4.Radius = 3

doc.recompute()
